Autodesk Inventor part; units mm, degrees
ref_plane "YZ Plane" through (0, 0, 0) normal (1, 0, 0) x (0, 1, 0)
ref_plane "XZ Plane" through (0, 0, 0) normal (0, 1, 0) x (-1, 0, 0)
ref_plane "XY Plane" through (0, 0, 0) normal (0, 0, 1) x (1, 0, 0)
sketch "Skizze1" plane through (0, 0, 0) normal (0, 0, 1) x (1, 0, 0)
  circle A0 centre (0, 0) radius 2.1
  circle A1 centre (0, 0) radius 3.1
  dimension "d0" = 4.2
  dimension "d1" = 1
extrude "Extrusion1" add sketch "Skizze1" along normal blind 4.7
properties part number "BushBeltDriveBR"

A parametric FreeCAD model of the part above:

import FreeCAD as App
import Part
import Sketcher
from FreeCAD import Vector
Q = App.Units.Quantity

doc = App.newDocument("Part")
body = doc.addObject("PartDesign::Body", "Body")

# Sketch on XY plane
sketch1 = body.newObject("Sketcher::SketchObject", "Sketch")
sketch1.AttachmentSupport = (doc.getObject("XY_Plane"), [""])
sketch1.MapMode = "FlatFace"
sketch1.addGeometry(Part.Circle(Vector(0, 0, 0), Vector(0, 0, 1), 3.1), False)
sketch1.addGeometry(Part.Circle(Vector(0, 0, 0), Vector(0, 0, 1), 2.1), False)
sketch1.addConstraint(Sketcher.Constraint("Coincident", 0, 3, -1, 1))
sketch1.addConstraint(Sketcher.Constraint("Coincident", 1, 3, -1, 1))
sketch1.addConstraint(Sketcher.Constraint("Diameter", 1, Q("4.2 mm")))
sketch1.addConstraint(Sketcher.Constraint("Diameter", 0, Q("6.2 mm")))
pad1 = body.newObject("PartDesign::Pad", "Pad")
pad1.Profile = sketch1
pad1.Length = 4.7

doc.recompute()
